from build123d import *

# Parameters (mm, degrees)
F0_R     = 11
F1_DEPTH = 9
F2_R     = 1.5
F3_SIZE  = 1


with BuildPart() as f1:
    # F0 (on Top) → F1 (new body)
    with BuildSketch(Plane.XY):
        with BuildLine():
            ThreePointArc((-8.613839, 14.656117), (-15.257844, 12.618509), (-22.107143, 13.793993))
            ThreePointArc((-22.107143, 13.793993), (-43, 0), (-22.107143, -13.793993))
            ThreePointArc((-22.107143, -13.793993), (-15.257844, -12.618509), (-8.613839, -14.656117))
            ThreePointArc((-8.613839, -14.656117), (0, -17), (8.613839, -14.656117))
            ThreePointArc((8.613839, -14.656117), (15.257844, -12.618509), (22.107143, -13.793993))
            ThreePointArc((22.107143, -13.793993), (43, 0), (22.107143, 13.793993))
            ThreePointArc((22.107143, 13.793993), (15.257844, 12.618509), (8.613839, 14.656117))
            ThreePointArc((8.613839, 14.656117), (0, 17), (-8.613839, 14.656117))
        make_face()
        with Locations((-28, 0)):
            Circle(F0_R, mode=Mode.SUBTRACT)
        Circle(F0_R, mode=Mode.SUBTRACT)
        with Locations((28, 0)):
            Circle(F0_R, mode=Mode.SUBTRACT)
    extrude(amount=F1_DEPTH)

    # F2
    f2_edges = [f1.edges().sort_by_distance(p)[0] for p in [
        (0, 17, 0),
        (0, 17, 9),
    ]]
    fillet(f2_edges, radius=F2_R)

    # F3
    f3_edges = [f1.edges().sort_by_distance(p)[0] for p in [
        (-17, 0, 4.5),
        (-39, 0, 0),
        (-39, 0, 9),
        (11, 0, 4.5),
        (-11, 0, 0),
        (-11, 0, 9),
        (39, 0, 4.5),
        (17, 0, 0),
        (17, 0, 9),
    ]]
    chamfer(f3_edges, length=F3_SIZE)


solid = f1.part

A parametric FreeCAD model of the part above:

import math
import FreeCAD as App
import Part
import Sketcher


def edges_at(feature, points):
    """Names of the edges that pass closest to the given points."""
    edges = feature.Shape.Edges
    near = lambda p: min(range(len(edges)), key=lambda i: edges[i].distToShape(Part.Vertex(*p))[0])
    return sorted({f"Edge{near(p) + 1}" for p in points})

doc = App.newDocument("Part")
body = doc.addObject("PartDesign::Body", "Body")

# Sketch on XY plane
sketch1 = body.newObject("Sketcher::SketchObject", "Sketch")
sketch1.AttachmentSupport = (doc.getObject("XY_Plane"), [""])
sketch1.MapMode = "FlatFace"
sketch1.addGeometry(Part.ArcOfCircle(Part.Circle(App.Vector(-16.214285, 27.587985, 0), App.Vector(0, 0, 1), 14.999999), math.radians(-113.132401), math.radians(-59.55597)), False)
sketch1.addGeometry(Part.ArcOfCircle(Part.Circle(App.Vector(-28, 0, 0), App.Vector(0, 0, 1), 15), math.radians(66.867605), math.radians(293.132395)), False)
sketch1.addGeometry(Part.ArcOfCircle(Part.Circle(App.Vector(-16.214285, -27.587985, 0), App.Vector(0, 0, 1), 14.999999), math.radians(59.55597), math.radians(113.132401)), False)
sketch1.addGeometry(Part.ArcOfCircle(Part.Circle(App.Vector(0, -0.000003, 0), App.Vector(0, 0, 1), 16.999997), math.radians(-120.444034), math.radians(-59.555966)), False)
sketch1.addGeometry(Part.ArcOfCircle(Part.Circle(App.Vector(16.214285, -27.587985, 0), App.Vector(0, 0, 1), 14.999999), math.radians(66.867599), math.radians(120.44403)), False)
sketch1.addGeometry(Part.ArcOfCircle(Part.Circle(App.Vector(28, 0, 0), App.Vector(0, 0, 1), 15), math.radians(-113.132395), math.radians(113.132395)), False)
sketch1.addGeometry(Part.ArcOfCircle(Part.Circle(App.Vector(16.214285, 27.587985, 0), App.Vector(0, 0, 1), 14.999999), math.radians(-120.44403), math.radians(-66.867599)), False)
sketch1.addGeometry(Part.ArcOfCircle(Part.Circle(App.Vector(0, 0.000003, 0), App.Vector(0, 0, 1), 16.999997), math.radians(59.555966), math.radians(120.444034)), False)
sketch1.addGeometry(Part.Circle(App.Vector(-28, 0, 0), App.Vector(0, 0, 1), 11), False)
sketch1.addGeometry(Part.Circle(App.Vector(0, 0, 0), App.Vector(0, 0, 1), 11), False)
sketch1.addGeometry(Part.Circle(App.Vector(28, 0, 0), App.Vector(0, 0, 1), 11), False)
sketch1.addConstraint(Sketcher.Constraint("Tangent", 0, 1, 1, 1))
sketch1.addConstraint(Sketcher.Constraint("Tangent", 1, 2, 2, 2))
sketch1.addConstraint(Sketcher.Constraint("Tangent", 2, 1, 3, 1))
sketch1.addConstraint(Sketcher.Constraint("Tangent", 3, 2, 4, 2))
sketch1.addConstraint(Sketcher.Constraint("Tangent", 4, 1, 5, 1))
sketch1.addConstraint(Sketcher.Constraint("Tangent", 5, 2, 6, 2))
sketch1.addConstraint(Sketcher.Constraint("Tangent", 6, 1, 7, 1))
sketch1.addConstraint(Sketcher.Constraint("Tangent", 7, 2, 0, 2))
sketch1.addConstraint(Sketcher.Constraint("Coincident", 3, 3, -1, 1))
sketch1.addConstraint(Sketcher.Constraint("Coincident", 7, 3, -1, 1))
sketch1.addConstraint(Sketcher.Constraint("Coincident", 9, 3, -1, 1))
sketch1.addConstraint(Sketcher.Constraint("Coincident", 8, 3, 1, 3))
sketch1.addConstraint(Sketcher.Constraint("Coincident", 10, 3, 5, 3))
sketch1.addConstraint(Sketcher.Constraint("Equal", 0, 1))
sketch1.addConstraint(Sketcher.Constraint("Equal", 1, 2))
sketch1.addConstraint(Sketcher.Constraint("Equal", 2, 4))
sketch1.addConstraint(Sketcher.Constraint("Equal", 4, 5))
sketch1.addConstraint(Sketcher.Constraint("Equal", 5, 6))
sketch1.addConstraint(Sketcher.Constraint("Equal", 3, 7))
sketch1.addConstraint(Sketcher.Constraint("Equal", 8, 9))
sketch1.addConstraint(Sketcher.Constraint("Equal", 9, 10))
sketch1.addConstraint(Sketcher.Constraint("Symmetric", 1, 3, 5, 3, -1, 1))
sketch1.addConstraint(Sketcher.Constraint("PointOnObject", 1, 3, -1))
sketch1.addConstraint(Sketcher.Constraint("Diameter", 8, 22.0))
sketch1.addConstraint(Sketcher.Constraint("Radius", 0, 14.999999))
sketch1.addConstraint(Sketcher.Constraint("DistanceX", 1, 3, -1, 1, 28.0))
sketch1.addConstraint(Sketcher.Constraint("Radius", 3, 16.999997))
pad1 = body.newObject("PartDesign::Pad", "Pad")
pad1.Profile = sketch1
pad1.Length = 9
doc.recompute()

fillet = body.newObject("PartDesign::Fillet", "Fillet")
fillet.Base = (pad1, edges_at(pad1, [(0, 17, 0), (0, 17, 9)]))
fillet.Radius = 1.5
doc.recompute()

chamfer = body.newObject("PartDesign::Chamfer", "Chamfer")
chamfer.Base = (fillet, edges_at(fillet, [
    (-17, 0, 4.5),
    (-39, 0, 0),
    (-39, 0, 9),
    (11, 0, 4.5),
    (-11, 0, 0),
    (-11, 0, 9),
    (39, 0, 4.5),
    (17, 0, 0),
    (17, 0, 9),
]))
chamfer.Size = 1

doc.recompute()
